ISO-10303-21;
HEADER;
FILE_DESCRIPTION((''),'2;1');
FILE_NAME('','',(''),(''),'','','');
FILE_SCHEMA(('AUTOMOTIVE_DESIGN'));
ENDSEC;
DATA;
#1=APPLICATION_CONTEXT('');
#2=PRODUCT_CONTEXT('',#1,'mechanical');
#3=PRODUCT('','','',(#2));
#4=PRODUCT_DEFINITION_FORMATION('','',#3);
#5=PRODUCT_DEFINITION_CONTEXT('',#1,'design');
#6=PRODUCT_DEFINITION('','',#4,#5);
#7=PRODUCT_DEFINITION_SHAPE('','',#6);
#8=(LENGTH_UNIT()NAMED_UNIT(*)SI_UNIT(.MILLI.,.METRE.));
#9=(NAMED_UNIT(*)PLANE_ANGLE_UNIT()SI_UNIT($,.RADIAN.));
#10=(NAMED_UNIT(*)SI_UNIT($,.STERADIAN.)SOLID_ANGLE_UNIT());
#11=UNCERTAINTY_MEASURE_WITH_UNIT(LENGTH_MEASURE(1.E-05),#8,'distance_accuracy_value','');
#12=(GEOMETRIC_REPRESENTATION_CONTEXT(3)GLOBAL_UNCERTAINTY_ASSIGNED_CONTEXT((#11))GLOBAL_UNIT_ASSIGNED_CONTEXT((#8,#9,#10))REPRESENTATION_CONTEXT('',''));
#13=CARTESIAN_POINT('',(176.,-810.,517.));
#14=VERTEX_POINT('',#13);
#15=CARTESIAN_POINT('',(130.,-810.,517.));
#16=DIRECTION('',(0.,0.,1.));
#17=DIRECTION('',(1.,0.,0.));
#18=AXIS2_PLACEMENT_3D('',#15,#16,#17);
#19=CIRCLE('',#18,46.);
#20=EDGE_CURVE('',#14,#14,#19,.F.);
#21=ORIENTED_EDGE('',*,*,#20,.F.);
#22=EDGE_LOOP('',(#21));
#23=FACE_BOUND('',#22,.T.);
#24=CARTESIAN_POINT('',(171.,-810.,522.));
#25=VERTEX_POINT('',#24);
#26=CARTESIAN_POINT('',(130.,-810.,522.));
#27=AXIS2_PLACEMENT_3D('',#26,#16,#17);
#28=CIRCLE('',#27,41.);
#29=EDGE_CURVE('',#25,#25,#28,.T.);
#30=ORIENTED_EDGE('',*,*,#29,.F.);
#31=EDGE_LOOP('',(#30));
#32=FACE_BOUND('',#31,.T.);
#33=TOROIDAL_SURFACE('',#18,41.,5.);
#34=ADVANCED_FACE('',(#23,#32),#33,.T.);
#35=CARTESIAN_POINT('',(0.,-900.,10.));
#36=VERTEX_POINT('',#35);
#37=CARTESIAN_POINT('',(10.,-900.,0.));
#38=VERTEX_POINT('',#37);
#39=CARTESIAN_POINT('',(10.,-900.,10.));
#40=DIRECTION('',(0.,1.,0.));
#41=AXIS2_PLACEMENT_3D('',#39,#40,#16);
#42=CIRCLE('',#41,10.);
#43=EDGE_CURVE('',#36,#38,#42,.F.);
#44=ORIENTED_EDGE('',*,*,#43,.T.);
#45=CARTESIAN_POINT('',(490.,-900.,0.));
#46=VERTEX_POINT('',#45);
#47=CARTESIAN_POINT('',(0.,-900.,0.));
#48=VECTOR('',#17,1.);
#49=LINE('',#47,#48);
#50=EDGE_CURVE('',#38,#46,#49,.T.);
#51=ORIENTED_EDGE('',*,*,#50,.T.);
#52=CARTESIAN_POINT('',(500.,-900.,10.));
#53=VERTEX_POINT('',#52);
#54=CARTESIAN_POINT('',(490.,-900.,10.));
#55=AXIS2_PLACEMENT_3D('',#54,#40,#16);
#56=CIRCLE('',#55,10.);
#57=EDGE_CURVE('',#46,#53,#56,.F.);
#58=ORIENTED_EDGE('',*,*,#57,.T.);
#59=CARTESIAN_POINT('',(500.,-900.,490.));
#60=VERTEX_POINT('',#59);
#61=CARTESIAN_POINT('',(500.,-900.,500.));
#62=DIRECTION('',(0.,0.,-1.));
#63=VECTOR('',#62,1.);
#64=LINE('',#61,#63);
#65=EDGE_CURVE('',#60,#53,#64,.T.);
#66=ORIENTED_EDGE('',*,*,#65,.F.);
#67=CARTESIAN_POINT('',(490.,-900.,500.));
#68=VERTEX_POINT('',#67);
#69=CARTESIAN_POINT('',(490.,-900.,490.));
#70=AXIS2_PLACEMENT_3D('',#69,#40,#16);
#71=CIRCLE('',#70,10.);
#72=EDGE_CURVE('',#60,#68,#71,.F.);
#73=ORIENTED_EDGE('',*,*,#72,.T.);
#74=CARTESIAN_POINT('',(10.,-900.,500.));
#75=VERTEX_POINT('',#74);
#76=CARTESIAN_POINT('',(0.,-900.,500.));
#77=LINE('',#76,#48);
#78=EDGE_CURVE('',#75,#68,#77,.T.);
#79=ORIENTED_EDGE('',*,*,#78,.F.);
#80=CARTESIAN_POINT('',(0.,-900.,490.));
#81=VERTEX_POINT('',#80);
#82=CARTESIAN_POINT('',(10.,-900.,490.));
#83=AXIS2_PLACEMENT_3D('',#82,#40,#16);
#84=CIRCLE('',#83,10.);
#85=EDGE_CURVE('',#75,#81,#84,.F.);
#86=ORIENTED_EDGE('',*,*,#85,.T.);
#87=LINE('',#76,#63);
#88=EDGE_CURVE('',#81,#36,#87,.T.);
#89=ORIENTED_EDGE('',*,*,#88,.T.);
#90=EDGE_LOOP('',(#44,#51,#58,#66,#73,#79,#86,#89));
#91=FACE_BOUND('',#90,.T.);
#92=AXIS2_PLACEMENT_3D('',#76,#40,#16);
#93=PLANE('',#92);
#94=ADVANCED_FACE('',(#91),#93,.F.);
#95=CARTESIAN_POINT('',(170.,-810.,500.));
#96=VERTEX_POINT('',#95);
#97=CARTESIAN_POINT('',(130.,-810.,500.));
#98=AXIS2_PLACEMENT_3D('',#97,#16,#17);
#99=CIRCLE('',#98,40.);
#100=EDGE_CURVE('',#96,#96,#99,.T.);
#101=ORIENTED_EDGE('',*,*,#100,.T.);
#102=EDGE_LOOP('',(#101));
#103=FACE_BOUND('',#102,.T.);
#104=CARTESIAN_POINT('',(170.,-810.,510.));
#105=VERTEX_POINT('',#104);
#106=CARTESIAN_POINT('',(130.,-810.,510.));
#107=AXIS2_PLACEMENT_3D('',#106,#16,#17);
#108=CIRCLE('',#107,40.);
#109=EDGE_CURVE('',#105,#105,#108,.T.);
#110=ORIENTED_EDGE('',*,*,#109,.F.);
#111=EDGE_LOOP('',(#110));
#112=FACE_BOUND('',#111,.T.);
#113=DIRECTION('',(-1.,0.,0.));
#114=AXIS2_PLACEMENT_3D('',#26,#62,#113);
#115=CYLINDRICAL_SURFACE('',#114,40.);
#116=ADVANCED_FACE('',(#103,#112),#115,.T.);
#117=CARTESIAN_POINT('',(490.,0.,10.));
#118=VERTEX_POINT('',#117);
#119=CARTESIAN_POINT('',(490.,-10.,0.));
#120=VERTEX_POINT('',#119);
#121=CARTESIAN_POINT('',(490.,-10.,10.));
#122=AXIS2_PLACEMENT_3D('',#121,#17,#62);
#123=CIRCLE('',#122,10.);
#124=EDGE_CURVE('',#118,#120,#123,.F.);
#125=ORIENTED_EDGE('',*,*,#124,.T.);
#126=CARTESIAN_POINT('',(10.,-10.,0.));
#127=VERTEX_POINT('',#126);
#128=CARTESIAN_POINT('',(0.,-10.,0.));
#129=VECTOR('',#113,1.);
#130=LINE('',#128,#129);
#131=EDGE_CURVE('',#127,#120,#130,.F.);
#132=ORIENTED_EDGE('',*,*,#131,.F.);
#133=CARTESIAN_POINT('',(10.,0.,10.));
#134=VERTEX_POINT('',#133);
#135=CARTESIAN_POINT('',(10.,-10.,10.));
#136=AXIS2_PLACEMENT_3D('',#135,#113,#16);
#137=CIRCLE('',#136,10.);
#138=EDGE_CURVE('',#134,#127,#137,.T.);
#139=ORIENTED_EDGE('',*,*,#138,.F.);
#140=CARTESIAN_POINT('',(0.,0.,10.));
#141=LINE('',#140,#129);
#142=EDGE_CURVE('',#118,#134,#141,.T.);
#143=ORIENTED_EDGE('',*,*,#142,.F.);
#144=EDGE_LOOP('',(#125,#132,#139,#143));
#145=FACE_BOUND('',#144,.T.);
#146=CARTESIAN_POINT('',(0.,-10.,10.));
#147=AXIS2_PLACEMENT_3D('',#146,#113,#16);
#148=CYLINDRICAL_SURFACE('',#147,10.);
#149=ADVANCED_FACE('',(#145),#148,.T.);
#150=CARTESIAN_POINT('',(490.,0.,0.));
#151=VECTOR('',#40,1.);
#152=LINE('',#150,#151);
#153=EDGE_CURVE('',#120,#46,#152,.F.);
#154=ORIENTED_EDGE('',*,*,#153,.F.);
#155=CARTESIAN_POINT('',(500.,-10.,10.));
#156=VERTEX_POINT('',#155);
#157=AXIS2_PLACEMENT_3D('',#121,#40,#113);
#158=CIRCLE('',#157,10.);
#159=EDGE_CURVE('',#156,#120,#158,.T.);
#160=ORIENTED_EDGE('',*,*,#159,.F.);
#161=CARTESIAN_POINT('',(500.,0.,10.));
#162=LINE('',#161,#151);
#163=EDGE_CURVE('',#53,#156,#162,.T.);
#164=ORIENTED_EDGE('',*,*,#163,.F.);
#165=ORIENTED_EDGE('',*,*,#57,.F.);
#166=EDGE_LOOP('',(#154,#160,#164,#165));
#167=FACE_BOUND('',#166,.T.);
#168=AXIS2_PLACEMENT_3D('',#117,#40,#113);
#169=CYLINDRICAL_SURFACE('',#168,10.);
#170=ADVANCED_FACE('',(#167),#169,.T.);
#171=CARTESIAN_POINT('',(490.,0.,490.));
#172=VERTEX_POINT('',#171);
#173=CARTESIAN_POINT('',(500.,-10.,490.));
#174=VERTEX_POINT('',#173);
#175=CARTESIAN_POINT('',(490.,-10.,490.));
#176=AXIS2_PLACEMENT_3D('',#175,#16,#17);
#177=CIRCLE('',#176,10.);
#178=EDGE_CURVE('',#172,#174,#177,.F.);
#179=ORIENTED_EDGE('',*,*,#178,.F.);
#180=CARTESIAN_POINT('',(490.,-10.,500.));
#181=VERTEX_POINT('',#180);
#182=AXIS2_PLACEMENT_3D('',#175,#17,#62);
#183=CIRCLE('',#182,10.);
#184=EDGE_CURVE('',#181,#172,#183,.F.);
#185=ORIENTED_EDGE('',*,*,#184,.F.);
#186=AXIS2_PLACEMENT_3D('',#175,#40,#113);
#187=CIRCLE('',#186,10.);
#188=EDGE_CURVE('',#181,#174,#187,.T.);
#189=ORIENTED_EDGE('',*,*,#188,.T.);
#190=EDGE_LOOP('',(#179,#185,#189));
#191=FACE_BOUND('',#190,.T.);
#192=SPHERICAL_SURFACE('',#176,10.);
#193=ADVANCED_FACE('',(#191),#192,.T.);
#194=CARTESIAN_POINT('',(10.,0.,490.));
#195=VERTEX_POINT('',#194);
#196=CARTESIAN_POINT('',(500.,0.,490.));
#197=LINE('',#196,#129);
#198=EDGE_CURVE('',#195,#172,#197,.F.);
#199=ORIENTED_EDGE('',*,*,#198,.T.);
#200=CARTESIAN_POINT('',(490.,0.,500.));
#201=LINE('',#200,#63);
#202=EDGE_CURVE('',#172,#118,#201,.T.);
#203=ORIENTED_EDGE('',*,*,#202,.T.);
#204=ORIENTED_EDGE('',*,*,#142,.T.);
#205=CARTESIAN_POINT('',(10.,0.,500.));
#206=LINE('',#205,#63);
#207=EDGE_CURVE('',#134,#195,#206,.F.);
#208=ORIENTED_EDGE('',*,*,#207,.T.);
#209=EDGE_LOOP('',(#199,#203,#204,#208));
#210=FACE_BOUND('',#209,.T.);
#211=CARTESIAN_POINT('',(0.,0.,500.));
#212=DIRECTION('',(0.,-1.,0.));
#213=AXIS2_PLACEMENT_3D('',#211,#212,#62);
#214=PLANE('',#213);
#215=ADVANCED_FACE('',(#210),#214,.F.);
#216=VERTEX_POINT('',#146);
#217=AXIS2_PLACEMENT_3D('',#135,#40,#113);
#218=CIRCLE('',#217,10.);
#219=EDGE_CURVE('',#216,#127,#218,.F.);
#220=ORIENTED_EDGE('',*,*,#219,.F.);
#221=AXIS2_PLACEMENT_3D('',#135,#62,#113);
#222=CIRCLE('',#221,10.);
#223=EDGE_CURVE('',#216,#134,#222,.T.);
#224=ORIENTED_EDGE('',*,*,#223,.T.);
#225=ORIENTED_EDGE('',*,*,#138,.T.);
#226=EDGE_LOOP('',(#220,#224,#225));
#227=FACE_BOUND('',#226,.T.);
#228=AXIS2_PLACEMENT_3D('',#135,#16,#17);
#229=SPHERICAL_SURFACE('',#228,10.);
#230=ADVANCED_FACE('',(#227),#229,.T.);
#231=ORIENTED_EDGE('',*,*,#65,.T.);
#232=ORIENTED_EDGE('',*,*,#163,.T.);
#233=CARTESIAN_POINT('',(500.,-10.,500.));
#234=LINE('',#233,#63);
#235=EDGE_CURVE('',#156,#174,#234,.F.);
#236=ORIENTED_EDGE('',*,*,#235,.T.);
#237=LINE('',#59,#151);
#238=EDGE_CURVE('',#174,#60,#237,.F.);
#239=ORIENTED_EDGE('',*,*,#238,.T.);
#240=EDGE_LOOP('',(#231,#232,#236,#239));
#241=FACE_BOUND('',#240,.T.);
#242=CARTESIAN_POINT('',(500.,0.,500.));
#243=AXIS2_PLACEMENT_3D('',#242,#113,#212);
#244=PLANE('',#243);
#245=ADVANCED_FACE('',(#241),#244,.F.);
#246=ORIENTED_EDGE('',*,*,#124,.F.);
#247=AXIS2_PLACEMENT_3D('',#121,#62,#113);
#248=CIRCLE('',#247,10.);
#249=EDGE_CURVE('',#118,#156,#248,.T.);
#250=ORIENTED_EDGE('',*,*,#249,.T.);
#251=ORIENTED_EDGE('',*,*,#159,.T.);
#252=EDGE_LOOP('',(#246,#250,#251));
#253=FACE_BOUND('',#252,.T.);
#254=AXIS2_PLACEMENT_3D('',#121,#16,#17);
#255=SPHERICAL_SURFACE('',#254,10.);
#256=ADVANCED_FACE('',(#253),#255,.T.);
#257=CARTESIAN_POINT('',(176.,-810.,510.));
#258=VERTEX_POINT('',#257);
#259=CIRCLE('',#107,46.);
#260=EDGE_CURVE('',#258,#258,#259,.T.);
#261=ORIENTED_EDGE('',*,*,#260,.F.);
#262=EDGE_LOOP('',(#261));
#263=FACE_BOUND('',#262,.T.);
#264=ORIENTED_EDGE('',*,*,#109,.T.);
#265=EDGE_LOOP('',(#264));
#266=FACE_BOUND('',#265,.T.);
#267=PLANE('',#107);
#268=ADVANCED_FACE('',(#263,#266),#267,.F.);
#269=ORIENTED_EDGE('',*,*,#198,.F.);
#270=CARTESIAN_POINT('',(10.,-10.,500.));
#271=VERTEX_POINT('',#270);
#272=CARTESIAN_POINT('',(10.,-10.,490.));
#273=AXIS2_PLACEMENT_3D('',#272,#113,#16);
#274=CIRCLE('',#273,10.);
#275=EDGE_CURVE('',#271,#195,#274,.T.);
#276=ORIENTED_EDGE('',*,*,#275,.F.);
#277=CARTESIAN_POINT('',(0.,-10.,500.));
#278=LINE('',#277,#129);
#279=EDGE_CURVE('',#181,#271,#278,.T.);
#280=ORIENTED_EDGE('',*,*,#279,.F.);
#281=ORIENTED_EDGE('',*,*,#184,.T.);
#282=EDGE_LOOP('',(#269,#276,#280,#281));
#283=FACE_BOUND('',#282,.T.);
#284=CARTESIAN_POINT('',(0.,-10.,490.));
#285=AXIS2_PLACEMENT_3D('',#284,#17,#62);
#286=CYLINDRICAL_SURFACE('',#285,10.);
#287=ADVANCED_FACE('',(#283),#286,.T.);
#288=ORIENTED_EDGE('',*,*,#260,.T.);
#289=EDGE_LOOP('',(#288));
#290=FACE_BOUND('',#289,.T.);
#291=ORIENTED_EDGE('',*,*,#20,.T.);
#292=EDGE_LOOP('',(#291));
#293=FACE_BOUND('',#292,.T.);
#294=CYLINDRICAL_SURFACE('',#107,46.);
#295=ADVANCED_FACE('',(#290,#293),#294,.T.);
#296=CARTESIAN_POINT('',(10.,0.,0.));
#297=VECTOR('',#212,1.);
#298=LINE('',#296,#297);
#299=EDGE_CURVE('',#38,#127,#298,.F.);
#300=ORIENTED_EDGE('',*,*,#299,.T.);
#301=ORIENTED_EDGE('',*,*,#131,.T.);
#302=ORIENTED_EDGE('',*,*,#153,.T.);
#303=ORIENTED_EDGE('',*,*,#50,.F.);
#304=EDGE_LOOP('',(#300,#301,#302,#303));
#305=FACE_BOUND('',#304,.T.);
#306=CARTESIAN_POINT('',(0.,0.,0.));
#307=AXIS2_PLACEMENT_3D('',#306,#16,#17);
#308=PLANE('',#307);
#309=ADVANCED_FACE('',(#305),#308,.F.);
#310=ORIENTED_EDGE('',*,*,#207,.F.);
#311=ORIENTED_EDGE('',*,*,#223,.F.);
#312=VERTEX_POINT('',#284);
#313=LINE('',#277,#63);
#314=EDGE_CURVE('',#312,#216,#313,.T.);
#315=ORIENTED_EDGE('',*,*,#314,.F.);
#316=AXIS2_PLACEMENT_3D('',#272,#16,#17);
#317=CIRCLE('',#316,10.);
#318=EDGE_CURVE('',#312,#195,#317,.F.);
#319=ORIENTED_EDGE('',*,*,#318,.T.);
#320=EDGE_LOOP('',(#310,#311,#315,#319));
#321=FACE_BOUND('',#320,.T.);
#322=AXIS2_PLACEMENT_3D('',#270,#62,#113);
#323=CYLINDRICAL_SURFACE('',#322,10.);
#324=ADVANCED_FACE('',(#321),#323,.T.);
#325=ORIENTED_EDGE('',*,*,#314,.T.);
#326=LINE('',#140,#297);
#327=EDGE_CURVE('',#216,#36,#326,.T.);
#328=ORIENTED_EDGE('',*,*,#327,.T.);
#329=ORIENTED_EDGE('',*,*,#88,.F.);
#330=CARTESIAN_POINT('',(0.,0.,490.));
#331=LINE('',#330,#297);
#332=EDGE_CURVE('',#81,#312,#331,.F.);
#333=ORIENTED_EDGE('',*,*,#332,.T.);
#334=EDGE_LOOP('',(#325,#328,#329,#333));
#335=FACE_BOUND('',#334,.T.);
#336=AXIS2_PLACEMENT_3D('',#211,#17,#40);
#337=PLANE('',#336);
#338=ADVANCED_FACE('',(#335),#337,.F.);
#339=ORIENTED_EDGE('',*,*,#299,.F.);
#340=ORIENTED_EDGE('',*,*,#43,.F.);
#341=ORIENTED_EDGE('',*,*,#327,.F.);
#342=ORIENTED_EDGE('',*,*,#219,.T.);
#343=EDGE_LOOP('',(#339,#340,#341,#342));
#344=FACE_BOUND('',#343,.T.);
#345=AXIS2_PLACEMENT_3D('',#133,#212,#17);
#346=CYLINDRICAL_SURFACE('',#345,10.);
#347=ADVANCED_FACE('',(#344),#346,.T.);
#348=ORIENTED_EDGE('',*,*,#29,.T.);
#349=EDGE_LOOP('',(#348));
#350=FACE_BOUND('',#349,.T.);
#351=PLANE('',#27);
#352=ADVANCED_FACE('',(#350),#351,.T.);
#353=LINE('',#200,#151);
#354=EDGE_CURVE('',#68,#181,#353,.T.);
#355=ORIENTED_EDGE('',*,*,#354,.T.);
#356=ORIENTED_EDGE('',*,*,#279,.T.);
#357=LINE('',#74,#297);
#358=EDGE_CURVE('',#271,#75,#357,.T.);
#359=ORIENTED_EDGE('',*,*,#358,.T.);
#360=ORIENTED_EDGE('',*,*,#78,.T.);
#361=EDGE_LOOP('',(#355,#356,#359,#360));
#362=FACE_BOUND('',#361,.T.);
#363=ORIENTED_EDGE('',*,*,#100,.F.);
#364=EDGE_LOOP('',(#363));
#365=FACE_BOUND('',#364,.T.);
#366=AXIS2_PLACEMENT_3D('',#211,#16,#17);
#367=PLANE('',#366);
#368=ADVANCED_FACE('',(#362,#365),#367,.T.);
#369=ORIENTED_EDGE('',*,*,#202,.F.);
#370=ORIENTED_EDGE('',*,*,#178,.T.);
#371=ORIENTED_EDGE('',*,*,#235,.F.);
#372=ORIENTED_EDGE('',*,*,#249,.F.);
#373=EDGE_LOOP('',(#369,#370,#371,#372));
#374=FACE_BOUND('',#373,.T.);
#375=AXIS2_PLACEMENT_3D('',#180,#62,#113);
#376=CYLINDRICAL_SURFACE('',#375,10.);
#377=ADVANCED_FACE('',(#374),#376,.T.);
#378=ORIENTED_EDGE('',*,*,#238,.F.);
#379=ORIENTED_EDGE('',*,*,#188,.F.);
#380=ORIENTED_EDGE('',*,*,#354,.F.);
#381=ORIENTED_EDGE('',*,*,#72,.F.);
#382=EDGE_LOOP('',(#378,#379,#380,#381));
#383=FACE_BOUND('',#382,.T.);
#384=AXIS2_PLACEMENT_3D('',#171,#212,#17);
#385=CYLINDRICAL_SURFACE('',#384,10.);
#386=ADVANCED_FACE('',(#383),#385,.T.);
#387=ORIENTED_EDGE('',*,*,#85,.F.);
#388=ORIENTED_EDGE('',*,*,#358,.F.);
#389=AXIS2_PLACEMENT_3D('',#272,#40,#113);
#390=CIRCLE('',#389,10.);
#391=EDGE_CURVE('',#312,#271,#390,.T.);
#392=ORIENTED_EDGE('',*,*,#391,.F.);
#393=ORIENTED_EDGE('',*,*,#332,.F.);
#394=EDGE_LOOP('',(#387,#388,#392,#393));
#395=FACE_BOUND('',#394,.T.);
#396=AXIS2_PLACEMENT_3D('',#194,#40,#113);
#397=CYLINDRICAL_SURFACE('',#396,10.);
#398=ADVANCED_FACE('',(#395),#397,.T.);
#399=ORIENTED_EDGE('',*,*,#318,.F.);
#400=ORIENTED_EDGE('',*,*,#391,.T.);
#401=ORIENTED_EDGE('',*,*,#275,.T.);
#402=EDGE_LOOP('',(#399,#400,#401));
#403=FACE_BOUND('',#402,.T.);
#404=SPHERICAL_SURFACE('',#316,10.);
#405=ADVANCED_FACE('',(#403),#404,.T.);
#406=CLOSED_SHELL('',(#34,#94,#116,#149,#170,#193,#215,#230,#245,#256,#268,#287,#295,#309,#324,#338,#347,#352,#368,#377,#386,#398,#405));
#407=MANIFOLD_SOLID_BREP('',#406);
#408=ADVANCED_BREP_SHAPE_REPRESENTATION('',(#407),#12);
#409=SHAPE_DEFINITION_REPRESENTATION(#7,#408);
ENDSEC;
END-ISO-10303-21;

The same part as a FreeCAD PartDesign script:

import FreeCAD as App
import Part
import Sketcher
from FreeCAD import Vector
Q = App.Units.Quantity


def edges_at(feature, points):
    """Names of the edges that pass closest to the given points."""
    edges = feature.Shape.Edges
    near = lambda p: min(range(len(edges)), key=lambda i: edges[i].distToShape(Part.Vertex(*p))[0])
    return sorted({f"Edge{near(p) + 1}" for p in points})


def add_polygon(sketch, points):
    """Adds a closed chain of lines whose ends are joined by coincident constraints."""
    first, n = sketch.GeometryCount, len(points)
    for a, b in zip(points, points[1:] + points[:1]):
        sketch.addGeometry(Part.LineSegment(App.Vector(*a, 0), App.Vector(*b, 0)), False)
    for i in range(n):
        sketch.addConstraint(Sketcher.Constraint("Coincident", first + i, 2, first + (i + 1) % n, 1))

doc = App.newDocument("Part")
params = doc.addObject("Spreadsheet::Sheet", "Params")
for row, (alias, value) in enumerate([
    ("sketch1_width", "500 mm"),
    ("sketch1_height", "900 mm"),
    ("pad1_length", "500 mm"),
    ("fillet_radius", "10 mm"),
    ("sketch2_diameter", "80 mm"),
    ("pad2_length", "22 mm"),
    ("sketch3_diameter", "92 mm"),
    ("pad3_length", "12 mm"),
    ("fillet2_radius", "5 mm"),
], start=1):
    params.set(f"A{row}", alias)
    params.set(f"B{row}", "=" + value)
    params.setAlias(f"B{row}", alias)

body = doc.addObject("PartDesign::Body", "Body")

sketch1 = body.newObject("Sketcher::SketchObject", "Sketch")
sketch1.AttachmentSupport = (doc.getObject("XY_Plane"), [""])
sketch1.MapMode = "FlatFace"
add_polygon(sketch1, [(0, 0), (0, -900), (500, -900), (500, 0)])
sketch1.addConstraint([
    Sketcher.Constraint("Vertical", 0),
    Sketcher.Constraint("Horizontal", 1),
    Sketcher.Constraint("Vertical", 2),
    Sketcher.Constraint("Horizontal", 3),
    Sketcher.Constraint("Coincident", 3, 2, -1, 1),
    Sketcher.Constraint("DistanceX", 1, 1, 1, 2, Q("500 mm")),
    Sketcher.Constraint("DistanceY", 0, 2, 0, 1, Q("900 mm")),
])
sketch1.setExpression("Constraints[9]", "Params.sketch1_width")
sketch1.setExpression("Constraints[10]", "Params.sketch1_height")
pad1 = body.newObject("PartDesign::Pad", "Pad")
pad1.Profile = sketch1
pad1.setExpression("Length", "Params.pad1_length")
doc.recompute()

fillet = body.newObject("PartDesign::Fillet", "Fillet")
fillet.Base = (pad1, edges_at(pad1, [
    (500, -450, 500),
    (250, 0, 500),
    (0, -450, 500),
    (250, 0, 0),
    (500, -450, 0),
    (0, -450, 0),
    (0, 0, 250),
    (500, 0, 250),
]))
fillet.setExpression("Radius", "Params.fillet_radius")

sketch2 = body.newObject("Sketcher::SketchObject", "Sketch001")
sketch2.AttachmentSupport = (doc.getObject("XY_Plane"), [""])
sketch2.MapMode = "FlatFace"
sketch2.AttachmentOffset = App.Placement(Vector(0, 0, 500), App.Rotation())
sketch2.addGeometry(Part.Circle(Vector(130, -810, 0), Vector(0, 0, 1), 40), False)
sketch2.addConstraint([
    Sketcher.Constraint("Diameter", 0, Q("80 mm")),
    Sketcher.Constraint("DistanceX", -1, 1, 0, 3, Q("130 mm")),
    Sketcher.Constraint("DistanceY", 0, 3, -1, 1, Q("810 mm")),
])
sketch2.setExpression("Constraints[0]", "Params.sketch2_diameter")
pad2 = body.newObject("PartDesign::Pad", "Pad001")
pad2.Profile = sketch2
pad2.setExpression("Length", "Params.pad2_length")

sketch3 = body.newObject("Sketcher::SketchObject", "Sketch002")
sketch3.AttachmentSupport = (doc.getObject("XY_Plane"), [""])
sketch3.MapMode = "FlatFace"
sketch3.AttachmentOffset = App.Placement(Vector(0, 0, 522), App.Rotation())
sketch3.addGeometry(Part.Circle(Vector(130, -810, 0), Vector(0, 0, 1), 46), False)
sketch3.addConstraint([
    Sketcher.Constraint("Diameter", 0, Q("92 mm")),
    Sketcher.Constraint("DistanceX", -1, 1, 0, 3, Q("130 mm")),
    Sketcher.Constraint("DistanceY", 0, 3, -1, 1, Q("810 mm")),
])
sketch3.setExpression("Constraints[0]", "Params.sketch3_diameter")
pad3 = body.newObject("PartDesign::Pad", "Pad002")
pad3.Profile = sketch3
pad3.setExpression("Length", "Params.pad3_length")
pad3.Reversed = True
doc.recompute()

fillet2 = body.newObject("PartDesign::Fillet", "Fillet001")
fillet2.Base = (pad3, edges_at(pad3, [(84, -810, 522)]))
fillet2.setExpression("Radius", "Params.fillet2_radius")

doc.recompute()
